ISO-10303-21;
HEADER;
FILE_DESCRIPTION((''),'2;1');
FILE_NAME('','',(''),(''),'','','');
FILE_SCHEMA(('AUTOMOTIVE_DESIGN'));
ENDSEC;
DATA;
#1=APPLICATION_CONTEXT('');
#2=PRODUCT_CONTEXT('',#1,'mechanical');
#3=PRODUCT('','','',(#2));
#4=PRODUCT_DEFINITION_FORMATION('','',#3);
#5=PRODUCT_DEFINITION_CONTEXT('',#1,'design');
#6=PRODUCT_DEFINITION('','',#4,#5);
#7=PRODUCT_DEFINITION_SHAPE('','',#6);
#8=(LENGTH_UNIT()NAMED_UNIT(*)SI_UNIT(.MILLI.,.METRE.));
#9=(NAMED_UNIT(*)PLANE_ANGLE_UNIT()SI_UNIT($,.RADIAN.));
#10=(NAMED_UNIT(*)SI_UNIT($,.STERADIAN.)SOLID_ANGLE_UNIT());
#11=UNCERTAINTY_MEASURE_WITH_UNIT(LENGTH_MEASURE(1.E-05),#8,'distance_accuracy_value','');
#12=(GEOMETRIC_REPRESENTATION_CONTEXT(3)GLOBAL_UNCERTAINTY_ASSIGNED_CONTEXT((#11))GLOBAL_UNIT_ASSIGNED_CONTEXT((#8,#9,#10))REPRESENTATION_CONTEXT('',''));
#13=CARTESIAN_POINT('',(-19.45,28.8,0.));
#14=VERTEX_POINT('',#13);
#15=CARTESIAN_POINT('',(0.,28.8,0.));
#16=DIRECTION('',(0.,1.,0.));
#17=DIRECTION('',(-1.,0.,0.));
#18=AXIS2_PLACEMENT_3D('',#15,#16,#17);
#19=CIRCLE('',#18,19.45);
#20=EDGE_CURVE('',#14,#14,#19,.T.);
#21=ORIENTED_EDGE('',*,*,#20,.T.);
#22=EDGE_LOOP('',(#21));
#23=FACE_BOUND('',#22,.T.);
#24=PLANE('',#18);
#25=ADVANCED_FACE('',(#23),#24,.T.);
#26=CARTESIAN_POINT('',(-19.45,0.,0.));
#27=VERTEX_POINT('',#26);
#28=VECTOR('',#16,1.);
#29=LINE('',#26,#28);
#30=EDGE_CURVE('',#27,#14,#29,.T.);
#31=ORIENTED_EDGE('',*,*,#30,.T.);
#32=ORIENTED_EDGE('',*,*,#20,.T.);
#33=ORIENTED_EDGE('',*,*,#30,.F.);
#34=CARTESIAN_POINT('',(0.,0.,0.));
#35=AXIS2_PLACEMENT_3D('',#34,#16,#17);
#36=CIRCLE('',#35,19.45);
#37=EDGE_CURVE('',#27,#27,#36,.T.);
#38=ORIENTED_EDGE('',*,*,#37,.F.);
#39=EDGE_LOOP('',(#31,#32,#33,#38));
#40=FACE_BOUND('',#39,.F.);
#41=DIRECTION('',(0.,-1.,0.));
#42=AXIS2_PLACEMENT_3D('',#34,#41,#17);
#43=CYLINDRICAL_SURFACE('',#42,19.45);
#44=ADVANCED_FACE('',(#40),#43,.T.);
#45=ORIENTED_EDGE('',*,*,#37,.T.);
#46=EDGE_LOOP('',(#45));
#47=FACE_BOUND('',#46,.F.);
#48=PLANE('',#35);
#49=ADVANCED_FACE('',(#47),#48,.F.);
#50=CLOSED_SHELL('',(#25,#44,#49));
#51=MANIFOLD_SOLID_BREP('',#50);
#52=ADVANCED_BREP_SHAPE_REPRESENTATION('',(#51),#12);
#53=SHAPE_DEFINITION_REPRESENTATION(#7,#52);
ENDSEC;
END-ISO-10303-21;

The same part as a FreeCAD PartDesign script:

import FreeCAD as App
import Part
import Sketcher

V = App.Vector

doc = App.newDocument("Part")
body = doc.addObject("PartDesign::Body", "Body")

sketch1 = body.newObject("Sketcher::SketchObject", "Sketch")
sketch1.AttachmentSupport = (doc.getObject("XZ_Plane"), [""])
sketch1.MapMode = "FlatFace"
sketch1.addGeometry(Part.Circle(V(0, 0, 0), V(0, 0, 1), 19), False)
sketch1.addConstraint(Sketcher.Constraint("Coincident", 0, 3, -1, 1))
sketch1.addConstraint(Sketcher.Constraint("Diameter", 0, 38.9))
pad1 = body.newObject("PartDesign::Pad", "Pad")
pad1.Profile = sketch1
pad1.Length = 28.8
pad1.Reversed = True

doc.recompute()
